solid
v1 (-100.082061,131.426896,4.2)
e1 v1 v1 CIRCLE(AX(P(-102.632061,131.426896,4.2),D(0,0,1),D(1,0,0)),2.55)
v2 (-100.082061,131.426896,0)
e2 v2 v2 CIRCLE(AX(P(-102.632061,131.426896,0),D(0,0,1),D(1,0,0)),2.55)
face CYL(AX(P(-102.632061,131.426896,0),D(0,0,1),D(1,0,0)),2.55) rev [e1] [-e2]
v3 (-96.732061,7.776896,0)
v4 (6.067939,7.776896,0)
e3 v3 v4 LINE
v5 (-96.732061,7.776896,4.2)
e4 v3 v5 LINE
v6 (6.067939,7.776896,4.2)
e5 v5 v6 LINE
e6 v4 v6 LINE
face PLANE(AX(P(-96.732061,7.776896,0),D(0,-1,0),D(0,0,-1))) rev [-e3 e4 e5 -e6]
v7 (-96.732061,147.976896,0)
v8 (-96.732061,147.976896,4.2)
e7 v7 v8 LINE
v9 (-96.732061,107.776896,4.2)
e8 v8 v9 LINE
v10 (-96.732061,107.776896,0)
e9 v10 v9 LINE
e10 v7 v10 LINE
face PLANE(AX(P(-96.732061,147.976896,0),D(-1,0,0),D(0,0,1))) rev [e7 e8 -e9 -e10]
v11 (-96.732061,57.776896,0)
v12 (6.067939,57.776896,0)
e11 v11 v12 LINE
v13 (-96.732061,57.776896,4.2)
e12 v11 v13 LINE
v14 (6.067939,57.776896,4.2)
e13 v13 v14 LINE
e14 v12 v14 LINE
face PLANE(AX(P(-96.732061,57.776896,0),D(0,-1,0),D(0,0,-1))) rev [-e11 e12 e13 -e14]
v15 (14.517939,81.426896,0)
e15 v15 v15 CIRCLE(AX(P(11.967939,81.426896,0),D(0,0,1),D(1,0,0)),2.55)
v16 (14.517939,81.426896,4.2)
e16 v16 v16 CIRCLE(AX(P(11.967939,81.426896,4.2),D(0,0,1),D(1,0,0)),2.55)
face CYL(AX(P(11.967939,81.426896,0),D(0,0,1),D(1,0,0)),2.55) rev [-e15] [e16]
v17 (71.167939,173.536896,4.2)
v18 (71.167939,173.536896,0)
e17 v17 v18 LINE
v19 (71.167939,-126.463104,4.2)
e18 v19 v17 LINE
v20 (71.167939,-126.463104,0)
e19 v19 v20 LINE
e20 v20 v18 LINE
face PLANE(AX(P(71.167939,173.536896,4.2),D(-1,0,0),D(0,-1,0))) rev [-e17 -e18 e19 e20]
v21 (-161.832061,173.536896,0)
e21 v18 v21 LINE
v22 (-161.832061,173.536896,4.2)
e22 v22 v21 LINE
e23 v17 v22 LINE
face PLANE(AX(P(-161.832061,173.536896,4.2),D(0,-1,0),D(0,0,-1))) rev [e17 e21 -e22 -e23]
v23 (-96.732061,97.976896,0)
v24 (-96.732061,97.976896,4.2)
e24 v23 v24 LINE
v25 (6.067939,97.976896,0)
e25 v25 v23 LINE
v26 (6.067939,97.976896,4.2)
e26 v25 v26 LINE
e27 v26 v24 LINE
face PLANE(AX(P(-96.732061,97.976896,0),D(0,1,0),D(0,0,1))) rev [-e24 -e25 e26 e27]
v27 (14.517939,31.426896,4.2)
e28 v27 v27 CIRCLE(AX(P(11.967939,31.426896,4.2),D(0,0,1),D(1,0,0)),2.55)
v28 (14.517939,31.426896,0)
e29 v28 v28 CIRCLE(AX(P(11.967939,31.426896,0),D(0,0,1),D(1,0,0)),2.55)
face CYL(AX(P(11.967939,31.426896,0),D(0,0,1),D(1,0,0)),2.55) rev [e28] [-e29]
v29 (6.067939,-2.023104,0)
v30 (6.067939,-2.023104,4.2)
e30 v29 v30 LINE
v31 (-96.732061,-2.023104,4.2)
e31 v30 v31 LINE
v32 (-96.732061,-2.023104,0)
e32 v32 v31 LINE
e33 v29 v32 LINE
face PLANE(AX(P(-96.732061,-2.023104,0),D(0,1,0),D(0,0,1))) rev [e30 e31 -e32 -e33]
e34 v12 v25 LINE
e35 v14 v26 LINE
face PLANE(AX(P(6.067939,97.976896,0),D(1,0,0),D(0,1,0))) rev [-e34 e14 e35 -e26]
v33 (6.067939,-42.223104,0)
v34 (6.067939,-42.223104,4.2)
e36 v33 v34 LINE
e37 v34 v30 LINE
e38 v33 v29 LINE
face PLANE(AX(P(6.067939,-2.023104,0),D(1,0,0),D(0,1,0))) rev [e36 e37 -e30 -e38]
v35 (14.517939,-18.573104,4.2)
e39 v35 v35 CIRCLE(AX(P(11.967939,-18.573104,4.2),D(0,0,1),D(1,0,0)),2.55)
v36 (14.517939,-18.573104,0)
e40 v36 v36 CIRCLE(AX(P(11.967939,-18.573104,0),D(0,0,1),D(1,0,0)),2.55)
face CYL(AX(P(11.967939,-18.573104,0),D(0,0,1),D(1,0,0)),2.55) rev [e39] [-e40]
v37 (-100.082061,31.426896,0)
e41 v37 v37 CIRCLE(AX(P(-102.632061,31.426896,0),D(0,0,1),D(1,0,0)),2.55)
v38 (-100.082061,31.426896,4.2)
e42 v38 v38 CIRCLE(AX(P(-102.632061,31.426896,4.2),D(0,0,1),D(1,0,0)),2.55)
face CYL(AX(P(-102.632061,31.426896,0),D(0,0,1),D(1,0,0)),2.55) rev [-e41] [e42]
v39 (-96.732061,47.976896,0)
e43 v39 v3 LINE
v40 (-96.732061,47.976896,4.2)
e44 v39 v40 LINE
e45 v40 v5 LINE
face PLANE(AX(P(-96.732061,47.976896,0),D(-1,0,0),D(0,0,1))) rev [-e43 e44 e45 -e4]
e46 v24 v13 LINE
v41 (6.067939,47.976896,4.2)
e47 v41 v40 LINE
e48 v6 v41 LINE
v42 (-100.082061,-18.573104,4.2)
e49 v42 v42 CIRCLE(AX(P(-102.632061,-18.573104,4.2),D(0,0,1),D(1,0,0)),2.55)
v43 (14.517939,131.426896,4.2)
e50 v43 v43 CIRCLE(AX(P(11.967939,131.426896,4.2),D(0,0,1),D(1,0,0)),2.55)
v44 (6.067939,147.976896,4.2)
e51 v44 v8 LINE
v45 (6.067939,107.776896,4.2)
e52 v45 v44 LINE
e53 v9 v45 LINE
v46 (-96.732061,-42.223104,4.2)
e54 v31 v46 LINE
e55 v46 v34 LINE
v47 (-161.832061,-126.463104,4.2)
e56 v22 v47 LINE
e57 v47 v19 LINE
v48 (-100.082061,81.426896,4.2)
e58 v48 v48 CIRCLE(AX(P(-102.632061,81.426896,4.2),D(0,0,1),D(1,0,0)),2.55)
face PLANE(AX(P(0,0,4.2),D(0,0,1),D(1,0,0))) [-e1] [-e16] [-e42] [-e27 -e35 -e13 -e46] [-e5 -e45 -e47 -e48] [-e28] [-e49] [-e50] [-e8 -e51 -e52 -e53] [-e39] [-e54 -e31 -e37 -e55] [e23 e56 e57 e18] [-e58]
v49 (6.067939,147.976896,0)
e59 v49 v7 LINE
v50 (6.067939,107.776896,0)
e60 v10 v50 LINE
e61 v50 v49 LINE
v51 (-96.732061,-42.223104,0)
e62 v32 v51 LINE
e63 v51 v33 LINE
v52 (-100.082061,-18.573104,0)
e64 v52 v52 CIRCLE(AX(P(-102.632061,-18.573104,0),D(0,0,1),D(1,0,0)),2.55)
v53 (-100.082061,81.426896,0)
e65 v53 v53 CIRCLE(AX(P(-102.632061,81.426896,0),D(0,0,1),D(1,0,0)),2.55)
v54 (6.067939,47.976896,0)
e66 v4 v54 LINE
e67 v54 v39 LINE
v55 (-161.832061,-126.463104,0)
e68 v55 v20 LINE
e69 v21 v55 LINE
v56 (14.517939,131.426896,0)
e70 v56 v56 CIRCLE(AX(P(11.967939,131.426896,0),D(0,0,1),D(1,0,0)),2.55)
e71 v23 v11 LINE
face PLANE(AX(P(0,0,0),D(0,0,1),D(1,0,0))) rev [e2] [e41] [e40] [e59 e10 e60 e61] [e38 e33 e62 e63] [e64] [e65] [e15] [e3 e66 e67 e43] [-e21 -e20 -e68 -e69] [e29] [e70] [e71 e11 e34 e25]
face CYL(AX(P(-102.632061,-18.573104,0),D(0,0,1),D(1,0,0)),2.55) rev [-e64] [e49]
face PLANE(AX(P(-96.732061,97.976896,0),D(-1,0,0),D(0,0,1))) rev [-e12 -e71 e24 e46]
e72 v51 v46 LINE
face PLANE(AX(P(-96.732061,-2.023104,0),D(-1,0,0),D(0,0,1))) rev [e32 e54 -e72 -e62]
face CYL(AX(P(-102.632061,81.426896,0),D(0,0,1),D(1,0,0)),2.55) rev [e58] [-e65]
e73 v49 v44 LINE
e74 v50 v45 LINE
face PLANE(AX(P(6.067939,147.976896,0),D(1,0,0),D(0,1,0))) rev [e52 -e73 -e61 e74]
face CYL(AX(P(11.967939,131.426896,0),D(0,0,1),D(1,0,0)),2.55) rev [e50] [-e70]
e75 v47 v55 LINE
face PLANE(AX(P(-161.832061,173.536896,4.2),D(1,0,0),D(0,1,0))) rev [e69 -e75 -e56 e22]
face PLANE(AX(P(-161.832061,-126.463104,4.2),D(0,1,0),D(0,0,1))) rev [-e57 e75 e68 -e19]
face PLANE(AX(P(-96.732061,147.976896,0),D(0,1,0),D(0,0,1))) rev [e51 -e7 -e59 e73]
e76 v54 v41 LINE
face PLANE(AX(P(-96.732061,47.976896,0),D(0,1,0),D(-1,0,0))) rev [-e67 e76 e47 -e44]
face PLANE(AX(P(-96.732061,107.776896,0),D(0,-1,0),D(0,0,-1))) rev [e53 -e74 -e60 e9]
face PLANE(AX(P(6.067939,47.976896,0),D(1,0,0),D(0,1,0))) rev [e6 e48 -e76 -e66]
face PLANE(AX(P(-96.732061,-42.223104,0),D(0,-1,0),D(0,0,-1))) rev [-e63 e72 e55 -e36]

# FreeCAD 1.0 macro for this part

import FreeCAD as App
import Part
import Sketcher


def add_polygon(sketch, points):
    """Adds a closed chain of lines whose ends are joined by coincident constraints."""
    first, n = sketch.GeometryCount, len(points)
    for a, b in zip(points, points[1:] + points[:1]):
        sketch.addGeometry(Part.LineSegment(App.Vector(*a, 0), App.Vector(*b, 0)), False)
    for i in range(n):
        sketch.addConstraint(Sketcher.Constraint("Coincident", first + i, 2, first + (i + 1) % n, 1))

doc = App.newDocument("Part")
params = doc.addObject("Spreadsheet::Sheet", "Params")
for row, (alias, value) in enumerate([
    ("sketch1_width", "233 mm"),
    ("sketch1_height", "300 mm"),
    ("pad1_length", "4.2 mm"),
    ("sketch2_diameter", "5.1 mm"),
    ("sketch2_width", "102.8 mm"),
    ("sketch2_height", "40.2 mm"),
], start=1):
    params.set(f"A{row}", alias)
    params.set(f"B{row}", "=" + value)
    params.setAlias(f"B{row}", alias)

body = doc.addObject("PartDesign::Body", "Body")

# Sketch on XY plane
sketch1 = body.newObject("Sketcher::SketchObject", "Sketch")
sketch1.AttachmentSupport = (doc.getObject("XY_Plane"), [""])
sketch1.MapMode = "FlatFace"
add_polygon(sketch1, [(-161.832061, 173.536896), (-161.832061, -126.463104), (71.167939, -126.463104), (71.167939, 173.536896)])  # lines 0-3
sketch1.addConstraint([
    Sketcher.Constraint("Vertical", 0),
    Sketcher.Constraint("Horizontal", 1),
    Sketcher.Constraint("Vertical", 2),
    Sketcher.Constraint("Horizontal", 3),
    Sketcher.Constraint("DistanceX", 1, 1, 1, 2, 233.0),
    Sketcher.Constraint("DistanceY", 0, 2, 0, 1, 300.0),
    Sketcher.Constraint("DistanceX", 0, 2, -1, 1, 161.832061),
    Sketcher.Constraint("DistanceY", 0, 2, -1, 1, 126.463104),
])
sketch1.setExpression("Constraints[8]", "Params.sketch1_width")
sketch1.setExpression("Constraints[9]", "Params.sketch1_height")
pad1 = body.newObject("PartDesign::Pad", "Pad")
pad1.Profile = sketch1
pad1.setExpression("Length", "Params.pad1_length")

# Sketch on XY plane
sketch2 = body.newObject("Sketcher::SketchObject", "Sketch001")
sketch2.AttachmentSupport = (doc.getObject("XY_Plane"), [""])
sketch2.MapMode = "FlatFace"
sketch2.AttachmentOffset = App.Placement(App.Vector(0, 0, 4.2), App.Rotation())
sketch2.addGeometry(Part.Circle(App.Vector(-102.632061, 131.426896, 0), App.Vector(0, 0, 1), 2.55), False)  # 0
sketch2.addGeometry(Part.Circle(App.Vector(11.967939, 131.426896, 0), App.Vector(0, 0, 1), 2.55), False)  # 1
sketch2.addGeometry(Part.Circle(App.Vector(-102.632061, 81.426896, 0), App.Vector(0, 0, 1), 2.55), False)  # 2
sketch2.addGeometry(Part.Circle(App.Vector(11.967939, 81.426896, 0), App.Vector(0, 0, 1), 2.55), False)  # 3
sketch2.addGeometry(Part.Circle(App.Vector(-102.632061, 31.426896, 0), App.Vector(0, 0, 1), 2.55), False)  # 4
sketch2.addGeometry(Part.Circle(App.Vector(11.967939, 31.426896, 0), App.Vector(0, 0, 1), 2.55), False)  # 5
sketch2.addGeometry(Part.Circle(App.Vector(-102.632061, -18.573104, 0), App.Vector(0, 0, 1), 2.55), False)  # 6
sketch2.addGeometry(Part.Circle(App.Vector(11.967939, -18.573104, 0), App.Vector(0, 0, 1), 2.55), False)  # 7
add_polygon(sketch2, [(-96.732061, -2.023104), (-96.732061, -42.223104), (6.067939, -42.223104), (6.067939, -2.023104)])  # lines 8-11
add_polygon(sketch2, [(-96.732061, 47.976896), (-96.732061, 7.776896), (6.067939, 7.776896), (6.067939, 47.976896)])  # lines 12-15
add_polygon(sketch2, [(-96.732061, 97.976896), (-96.732061, 57.776896), (6.067939, 57.776896), (6.067939, 97.976896)])  # lines 16-19
add_polygon(sketch2, [(-96.732061, 147.976896), (-96.732061, 107.776896), (6.067939, 107.776896), (6.067939, 147.976896)])  # lines 20-23
sketch2.addConstraint([
    Sketcher.Constraint("Vertical", 8),
    Sketcher.Constraint("Horizontal", 9),
    Sketcher.Constraint("Vertical", 10),
    Sketcher.Constraint("Horizontal", 11),
    Sketcher.Constraint("Vertical", 12),
    Sketcher.Constraint("Horizontal", 13),
    Sketcher.Constraint("Vertical", 14),
    Sketcher.Constraint("Horizontal", 15),
    Sketcher.Constraint("Vertical", 16),
    Sketcher.Constraint("Horizontal", 17),
    Sketcher.Constraint("Vertical", 18),
    Sketcher.Constraint("Horizontal", 19),
    Sketcher.Constraint("Vertical", 20),
    Sketcher.Constraint("Horizontal", 21),
    Sketcher.Constraint("Vertical", 22),
    Sketcher.Constraint("Horizontal", 23),
    Sketcher.Constraint("Equal", 0, 1),
    Sketcher.Constraint("Equal", 1, 2),
    Sketcher.Constraint("Equal", 2, 3),
    Sketcher.Constraint("Equal", 3, 4),
    Sketcher.Constraint("Equal", 4, 5),
    Sketcher.Constraint("Equal", 5, 6),
    Sketcher.Constraint("Equal", 6, 7),
    Sketcher.Constraint("Horizontal", 0, 3, 1, 3),
    Sketcher.Constraint("Horizontal", 2, 3, 3, 3),
    Sketcher.Constraint("Horizontal", 4, 3, 5, 3),
    Sketcher.Constraint("Horizontal", 6, 3, 7, 3),
    Sketcher.Constraint("Vertical", 0, 3, 2, 3),
    Sketcher.Constraint("Vertical", 1, 3, 3, 3),
    Sketcher.Constraint("Vertical", 2, 3, 4, 3),
    Sketcher.Constraint("Vertical", 3, 3, 5, 3),
    Sketcher.Constraint("Vertical", 4, 3, 6, 3),
    Sketcher.Constraint("Vertical", 5, 3, 7, 3),
    Sketcher.Constraint("Vertical", 11, 2, 12, 2),
    Sketcher.Constraint("Vertical", 10, 2, 13, 2),
    Sketcher.Constraint("Vertical", 15, 2, 16, 2),
    Sketcher.Constraint("Vertical", 14, 2, 17, 2),
    Sketcher.Constraint("Vertical", 19, 2, 20, 2),
    Sketcher.Constraint("Vertical", 18, 2, 21, 2),
    Sketcher.Constraint("Equal", 10, 12),
    Sketcher.Constraint("Equal", 14, 16),
    Sketcher.Constraint("Equal", 18, 20),
    Sketcher.Constraint("Diameter", 0, 5.1),
    Sketcher.Constraint("DistanceX", 9, 1, 9, 2, 102.8),
    Sketcher.Constraint("DistanceY", 8, 2, 8, 1, 40.2),
    Sketcher.Constraint("DistanceY", 2, 3, 0, 3, 50.0),
    Sketcher.Constraint("DistanceY", 4, 3, 2, 3, 50.0),
    Sketcher.Constraint("DistanceY", 6, 3, 4, 3, 50.0),
    Sketcher.Constraint("DistanceY", 8, 2, 12, 2, 50.0),
    Sketcher.Constraint("DistanceY", 12, 2, 16, 2, 50.0),
    Sketcher.Constraint("DistanceY", 16, 2, 20, 2, 50.0),
    Sketcher.Constraint("DistanceX", 0, 3, 1, 3, 114.6),
    Sketcher.Constraint("DistanceX", 6, 3, 8, 2, 5.9),
    Sketcher.Constraint("DistanceY", 8, 2, 6, 3, 23.65),
    Sketcher.Constraint("DistanceX", 0, 3, -1, 1, 102.632061),
    Sketcher.Constraint("DistanceY", -1, 1, 0, 3, 131.426896),
])
sketch2.setExpression("Constraints[58]", "Params.sketch2_diameter")
sketch2.setExpression("Constraints[59]", "Params.sketch2_width")
sketch2.setExpression("Constraints[60]", "Params.sketch2_height")
pocket1 = body.newObject("PartDesign::Pocket", "Pocket")
pocket1.Profile = sketch2
pocket1.Type = "ThroughAll"
pocket1.Midplane = True

doc.recompute()
